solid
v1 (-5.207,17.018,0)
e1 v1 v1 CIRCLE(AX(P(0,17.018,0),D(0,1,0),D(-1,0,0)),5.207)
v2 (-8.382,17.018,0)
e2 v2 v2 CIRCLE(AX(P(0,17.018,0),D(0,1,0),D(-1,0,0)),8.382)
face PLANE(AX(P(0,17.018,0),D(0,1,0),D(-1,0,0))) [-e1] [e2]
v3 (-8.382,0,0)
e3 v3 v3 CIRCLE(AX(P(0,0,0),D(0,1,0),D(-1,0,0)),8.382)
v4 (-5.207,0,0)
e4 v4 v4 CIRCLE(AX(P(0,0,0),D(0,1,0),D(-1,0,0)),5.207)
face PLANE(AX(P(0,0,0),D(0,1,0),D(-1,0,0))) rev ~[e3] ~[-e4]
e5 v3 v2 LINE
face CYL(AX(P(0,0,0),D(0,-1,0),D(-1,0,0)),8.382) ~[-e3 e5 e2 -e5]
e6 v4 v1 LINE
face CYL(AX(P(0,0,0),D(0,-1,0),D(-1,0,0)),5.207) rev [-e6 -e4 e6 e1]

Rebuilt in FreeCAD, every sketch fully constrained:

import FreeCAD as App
import Part
import Sketcher
Q = App.Units.Quantity

doc = App.newDocument("Part")
body = doc.addObject("PartDesign::Body", "Body")

# Sketch on XZ plane
sketch1 = body.newObject("Sketcher::SketchObject", "Sketch")
sketch1.AttachmentSupport = (doc.getObject("XZ_Plane"), [""])
sketch1.MapMode = "FlatFace"
sketch1.addGeometry(Part.Circle(App.Vector(0, 0, 0), App.Vector(0, 0, 1), 8), False)
sketch1.addGeometry(Part.Circle(App.Vector(0, 0, 0), App.Vector(0, 0, 1), 5), False)
sketch1.addConstraint(Sketcher.Constraint("Coincident", 0, 3, -1, 1))
sketch1.addConstraint(Sketcher.Constraint("Coincident", 1, 3, -1, 1))
sketch1.addConstraint(Sketcher.Constraint("Diameter", 1, Q("0.41 in")))
sketch1.addConstraint(Sketcher.Constraint("Diameter", 0, Q("0.66 in")))
pad1 = body.newObject("PartDesign::Pad", "Pad")
pad1.Profile = sketch1
pad1.Length = Q("0.67 in")
pad1.Reversed = True

doc.recompute()
